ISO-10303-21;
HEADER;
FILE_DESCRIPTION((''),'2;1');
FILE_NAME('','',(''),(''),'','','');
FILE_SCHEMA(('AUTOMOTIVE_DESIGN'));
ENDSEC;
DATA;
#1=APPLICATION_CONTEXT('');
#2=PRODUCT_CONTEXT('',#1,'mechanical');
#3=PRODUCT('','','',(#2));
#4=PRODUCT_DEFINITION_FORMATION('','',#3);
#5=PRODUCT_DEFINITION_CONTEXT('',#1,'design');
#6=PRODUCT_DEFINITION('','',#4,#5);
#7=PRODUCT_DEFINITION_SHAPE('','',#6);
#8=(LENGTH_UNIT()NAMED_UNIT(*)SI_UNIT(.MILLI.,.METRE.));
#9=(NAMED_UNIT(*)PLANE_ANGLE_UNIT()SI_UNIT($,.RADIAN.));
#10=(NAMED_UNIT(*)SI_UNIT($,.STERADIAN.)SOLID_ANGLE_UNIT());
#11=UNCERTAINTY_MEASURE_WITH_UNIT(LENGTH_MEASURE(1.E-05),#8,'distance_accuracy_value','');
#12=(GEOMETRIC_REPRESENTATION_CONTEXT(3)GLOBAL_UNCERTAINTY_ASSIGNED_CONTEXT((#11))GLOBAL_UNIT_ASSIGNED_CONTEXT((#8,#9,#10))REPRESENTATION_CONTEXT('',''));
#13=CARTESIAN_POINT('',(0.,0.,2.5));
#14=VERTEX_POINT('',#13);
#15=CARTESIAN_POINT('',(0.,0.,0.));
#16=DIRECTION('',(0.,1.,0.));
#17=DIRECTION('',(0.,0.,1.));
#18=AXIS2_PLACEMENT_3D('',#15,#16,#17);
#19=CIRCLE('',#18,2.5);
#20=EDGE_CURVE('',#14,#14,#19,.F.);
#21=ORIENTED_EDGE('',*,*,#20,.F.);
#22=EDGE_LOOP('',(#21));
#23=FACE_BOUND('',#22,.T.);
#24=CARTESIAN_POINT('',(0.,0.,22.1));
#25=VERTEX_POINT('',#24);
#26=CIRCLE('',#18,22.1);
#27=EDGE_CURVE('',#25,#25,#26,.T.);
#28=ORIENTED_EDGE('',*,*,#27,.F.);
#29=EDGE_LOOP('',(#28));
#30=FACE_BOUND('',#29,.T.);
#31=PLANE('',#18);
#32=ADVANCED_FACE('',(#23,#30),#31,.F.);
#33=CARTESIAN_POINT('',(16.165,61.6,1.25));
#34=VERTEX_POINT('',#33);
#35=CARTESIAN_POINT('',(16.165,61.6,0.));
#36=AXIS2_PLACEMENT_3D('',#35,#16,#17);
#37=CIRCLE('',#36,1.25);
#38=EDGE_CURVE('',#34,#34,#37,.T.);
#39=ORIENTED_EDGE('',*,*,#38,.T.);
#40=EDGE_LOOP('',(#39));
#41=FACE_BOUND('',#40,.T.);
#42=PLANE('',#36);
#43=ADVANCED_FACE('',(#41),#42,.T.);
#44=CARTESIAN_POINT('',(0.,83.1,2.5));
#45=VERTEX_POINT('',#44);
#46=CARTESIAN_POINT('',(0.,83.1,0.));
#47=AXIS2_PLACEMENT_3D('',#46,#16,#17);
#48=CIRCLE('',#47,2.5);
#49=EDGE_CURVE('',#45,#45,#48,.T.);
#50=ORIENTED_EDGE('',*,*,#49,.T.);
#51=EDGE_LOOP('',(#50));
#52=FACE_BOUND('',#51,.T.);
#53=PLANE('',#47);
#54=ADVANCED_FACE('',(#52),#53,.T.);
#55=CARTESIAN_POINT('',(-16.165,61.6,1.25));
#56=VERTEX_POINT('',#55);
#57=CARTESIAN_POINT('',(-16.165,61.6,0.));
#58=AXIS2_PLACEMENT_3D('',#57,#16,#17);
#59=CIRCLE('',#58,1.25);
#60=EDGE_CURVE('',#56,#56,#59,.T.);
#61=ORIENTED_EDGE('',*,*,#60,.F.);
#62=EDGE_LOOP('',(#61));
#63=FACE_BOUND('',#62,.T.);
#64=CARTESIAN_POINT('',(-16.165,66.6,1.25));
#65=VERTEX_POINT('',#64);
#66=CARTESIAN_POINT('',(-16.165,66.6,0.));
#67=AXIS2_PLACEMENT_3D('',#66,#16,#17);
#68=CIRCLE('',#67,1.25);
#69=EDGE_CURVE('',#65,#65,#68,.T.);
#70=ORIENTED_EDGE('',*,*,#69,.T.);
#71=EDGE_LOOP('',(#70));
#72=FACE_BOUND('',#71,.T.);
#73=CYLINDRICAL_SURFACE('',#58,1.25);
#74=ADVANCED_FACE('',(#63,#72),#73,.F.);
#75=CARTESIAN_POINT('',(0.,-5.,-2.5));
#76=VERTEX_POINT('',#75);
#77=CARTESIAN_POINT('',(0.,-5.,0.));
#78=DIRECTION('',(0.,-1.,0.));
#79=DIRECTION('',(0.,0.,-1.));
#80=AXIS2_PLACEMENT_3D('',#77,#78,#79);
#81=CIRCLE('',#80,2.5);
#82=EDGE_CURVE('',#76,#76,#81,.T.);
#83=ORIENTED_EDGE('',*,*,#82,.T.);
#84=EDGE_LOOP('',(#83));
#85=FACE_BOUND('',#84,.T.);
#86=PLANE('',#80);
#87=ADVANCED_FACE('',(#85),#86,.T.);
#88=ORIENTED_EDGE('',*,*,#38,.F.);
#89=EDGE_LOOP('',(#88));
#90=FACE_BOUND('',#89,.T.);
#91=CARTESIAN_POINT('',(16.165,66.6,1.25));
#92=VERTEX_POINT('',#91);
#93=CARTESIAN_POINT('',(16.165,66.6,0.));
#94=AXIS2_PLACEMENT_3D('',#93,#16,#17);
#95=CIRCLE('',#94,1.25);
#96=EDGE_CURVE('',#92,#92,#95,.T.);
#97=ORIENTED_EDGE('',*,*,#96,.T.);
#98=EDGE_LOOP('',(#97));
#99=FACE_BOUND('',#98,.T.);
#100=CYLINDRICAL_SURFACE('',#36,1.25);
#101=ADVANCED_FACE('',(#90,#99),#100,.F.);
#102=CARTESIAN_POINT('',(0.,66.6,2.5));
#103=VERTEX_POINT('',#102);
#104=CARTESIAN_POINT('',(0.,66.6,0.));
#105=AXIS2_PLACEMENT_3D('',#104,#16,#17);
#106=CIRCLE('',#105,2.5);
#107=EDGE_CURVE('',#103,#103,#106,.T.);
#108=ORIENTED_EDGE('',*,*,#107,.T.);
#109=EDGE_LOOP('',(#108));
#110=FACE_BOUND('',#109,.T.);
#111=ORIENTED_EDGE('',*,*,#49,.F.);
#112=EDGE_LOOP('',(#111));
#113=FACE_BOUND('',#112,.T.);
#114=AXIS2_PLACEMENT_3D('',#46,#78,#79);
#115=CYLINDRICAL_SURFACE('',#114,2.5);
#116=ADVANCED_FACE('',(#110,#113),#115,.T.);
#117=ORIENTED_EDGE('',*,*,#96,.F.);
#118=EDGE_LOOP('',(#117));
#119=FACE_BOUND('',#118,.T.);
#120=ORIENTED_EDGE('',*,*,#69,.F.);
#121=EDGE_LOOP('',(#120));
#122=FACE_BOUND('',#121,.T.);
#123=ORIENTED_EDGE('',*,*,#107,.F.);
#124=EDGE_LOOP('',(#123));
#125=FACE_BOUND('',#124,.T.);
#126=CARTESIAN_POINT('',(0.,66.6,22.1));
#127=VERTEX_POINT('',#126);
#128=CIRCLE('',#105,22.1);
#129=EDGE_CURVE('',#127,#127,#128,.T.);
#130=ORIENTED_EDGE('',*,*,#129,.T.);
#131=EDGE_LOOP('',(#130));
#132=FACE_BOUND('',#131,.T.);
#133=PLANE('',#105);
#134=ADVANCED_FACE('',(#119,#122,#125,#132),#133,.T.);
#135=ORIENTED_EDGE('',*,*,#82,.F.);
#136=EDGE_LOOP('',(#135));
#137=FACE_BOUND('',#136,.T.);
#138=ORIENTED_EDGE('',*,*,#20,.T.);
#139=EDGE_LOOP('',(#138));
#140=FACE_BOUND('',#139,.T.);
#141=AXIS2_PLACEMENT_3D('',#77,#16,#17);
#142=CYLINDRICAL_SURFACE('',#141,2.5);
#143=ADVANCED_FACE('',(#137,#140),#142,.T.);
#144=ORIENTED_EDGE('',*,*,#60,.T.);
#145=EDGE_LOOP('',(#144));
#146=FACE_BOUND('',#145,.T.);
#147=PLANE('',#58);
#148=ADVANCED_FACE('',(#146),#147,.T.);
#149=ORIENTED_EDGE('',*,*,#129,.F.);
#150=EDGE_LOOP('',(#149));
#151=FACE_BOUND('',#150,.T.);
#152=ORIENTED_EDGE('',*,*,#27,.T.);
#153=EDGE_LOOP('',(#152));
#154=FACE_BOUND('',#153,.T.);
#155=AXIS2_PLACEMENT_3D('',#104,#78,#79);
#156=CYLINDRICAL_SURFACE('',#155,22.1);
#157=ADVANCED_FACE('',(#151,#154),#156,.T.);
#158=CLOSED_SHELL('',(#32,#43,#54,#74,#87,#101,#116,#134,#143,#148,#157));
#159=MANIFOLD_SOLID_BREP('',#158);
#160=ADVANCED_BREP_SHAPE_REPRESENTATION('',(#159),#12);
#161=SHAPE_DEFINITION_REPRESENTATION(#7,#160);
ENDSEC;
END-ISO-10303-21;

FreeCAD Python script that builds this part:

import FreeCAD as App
import Part
import Sketcher
Q = App.Units.Quantity

doc = App.newDocument("Part")
body = doc.addObject("PartDesign::Body", "Body")

# Sketch on XZ plane
sketch1 = body.newObject("Sketcher::SketchObject", "Sketch")
sketch1.AttachmentSupport = (doc.getObject("XZ_Plane"), [""])
sketch1.MapMode = "FlatFace"
sketch1.addGeometry(Part.Circle(App.Vector(0, 0, 0), App.Vector(0, 0, 1), 22), False)
sketch1.addConstraint(Sketcher.Constraint("Coincident", 0, 3, -1, 1))
sketch1.addConstraint(Sketcher.Constraint("Diameter", 0, Q("44.2 mm")))
pad1 = body.newObject("PartDesign::Pad", "Pad")
pad1.Profile = sketch1
pad1.Length = 66.6
pad1.Reversed = True

# Sketch on XZ plane
sketch2 = body.newObject("Sketcher::SketchObject", "Sketch001")
sketch2.AttachmentSupport = (doc.getObject("XZ_Plane"), [""])
sketch2.MapMode = "FlatFace"
sketch2.AttachmentOffset = App.Placement(App.Vector(0, 0, -66.6), App.Rotation())
sketch2.addGeometry(Part.Circle(App.Vector(0, 0, 0), App.Vector(0, 0, 1), 2.5), False)
sketch2.addConstraint(Sketcher.Constraint("Coincident", 0, 3, -1, 1))
sketch2.addConstraint(Sketcher.Constraint("Diameter", 0, Q("5 mm")))
pad2 = body.newObject("PartDesign::Pad", "Pad001")
pad2.Profile = sketch2
pad2.Length = 16.5
pad2.Reversed = True

# Sketch on XZ plane
sketch3 = body.newObject("Sketcher::SketchObject", "Sketch002")
sketch3.AttachmentSupport = (doc.getObject("XZ_Plane"), [""])
sketch3.MapMode = "FlatFace"
sketch3.AttachmentOffset = App.Placement(App.Vector(0, 0, 5), App.Rotation())
sketch3.addGeometry(Part.Circle(App.Vector(0, 0, 0), App.Vector(0, 0, 1), 2.5), False)
sketch3.addConstraint(Sketcher.Constraint("Coincident", 0, 3, -1, 1))
sketch3.addConstraint(Sketcher.Constraint("Diameter", 0, Q("5 mm")))
pad3 = body.newObject("PartDesign::Pad", "Pad002")
pad3.Profile = sketch3
pad3.Length = 5
pad3.Reversed = True

# Sketch on XZ plane
sketch4 = body.newObject("Sketcher::SketchObject", "Sketch003")
sketch4.AttachmentSupport = (doc.getObject("XZ_Plane"), [""])
sketch4.MapMode = "FlatFace"
sketch4.AttachmentOffset = App.Placement(App.Vector(0, 0, -66.6), App.Rotation())
sketch4.addGeometry(Part.Circle(App.Vector(-16.2, 0, 0), App.Vector(0, 0, 1), 1.2), False)
sketch4.addGeometry(Part.Circle(App.Vector(16.2, 0, 0), App.Vector(0, 0, 1), 1.2), False)
sketch4.addConstraint(Sketcher.Constraint("Equal", 0, 1))
sketch4.addConstraint(Sketcher.Constraint("Symmetric", 0, 3, 1, 3, -1, 1))
sketch4.addConstraint(Sketcher.Constraint("PointOnObject", 0, 3, -1))
sketch4.addConstraint(Sketcher.Constraint("Diameter", 0, Q("2.5 mm")))
sketch4.addConstraint(Sketcher.Constraint("DistanceX", 0, 3, 1, 3, Q("32.33 mm")))
pocket1 = body.newObject("PartDesign::Pocket", "Pocket")
pocket1.Profile = sketch4
pocket1.Length = 5
pocket1.Reversed = True

doc.recompute()
